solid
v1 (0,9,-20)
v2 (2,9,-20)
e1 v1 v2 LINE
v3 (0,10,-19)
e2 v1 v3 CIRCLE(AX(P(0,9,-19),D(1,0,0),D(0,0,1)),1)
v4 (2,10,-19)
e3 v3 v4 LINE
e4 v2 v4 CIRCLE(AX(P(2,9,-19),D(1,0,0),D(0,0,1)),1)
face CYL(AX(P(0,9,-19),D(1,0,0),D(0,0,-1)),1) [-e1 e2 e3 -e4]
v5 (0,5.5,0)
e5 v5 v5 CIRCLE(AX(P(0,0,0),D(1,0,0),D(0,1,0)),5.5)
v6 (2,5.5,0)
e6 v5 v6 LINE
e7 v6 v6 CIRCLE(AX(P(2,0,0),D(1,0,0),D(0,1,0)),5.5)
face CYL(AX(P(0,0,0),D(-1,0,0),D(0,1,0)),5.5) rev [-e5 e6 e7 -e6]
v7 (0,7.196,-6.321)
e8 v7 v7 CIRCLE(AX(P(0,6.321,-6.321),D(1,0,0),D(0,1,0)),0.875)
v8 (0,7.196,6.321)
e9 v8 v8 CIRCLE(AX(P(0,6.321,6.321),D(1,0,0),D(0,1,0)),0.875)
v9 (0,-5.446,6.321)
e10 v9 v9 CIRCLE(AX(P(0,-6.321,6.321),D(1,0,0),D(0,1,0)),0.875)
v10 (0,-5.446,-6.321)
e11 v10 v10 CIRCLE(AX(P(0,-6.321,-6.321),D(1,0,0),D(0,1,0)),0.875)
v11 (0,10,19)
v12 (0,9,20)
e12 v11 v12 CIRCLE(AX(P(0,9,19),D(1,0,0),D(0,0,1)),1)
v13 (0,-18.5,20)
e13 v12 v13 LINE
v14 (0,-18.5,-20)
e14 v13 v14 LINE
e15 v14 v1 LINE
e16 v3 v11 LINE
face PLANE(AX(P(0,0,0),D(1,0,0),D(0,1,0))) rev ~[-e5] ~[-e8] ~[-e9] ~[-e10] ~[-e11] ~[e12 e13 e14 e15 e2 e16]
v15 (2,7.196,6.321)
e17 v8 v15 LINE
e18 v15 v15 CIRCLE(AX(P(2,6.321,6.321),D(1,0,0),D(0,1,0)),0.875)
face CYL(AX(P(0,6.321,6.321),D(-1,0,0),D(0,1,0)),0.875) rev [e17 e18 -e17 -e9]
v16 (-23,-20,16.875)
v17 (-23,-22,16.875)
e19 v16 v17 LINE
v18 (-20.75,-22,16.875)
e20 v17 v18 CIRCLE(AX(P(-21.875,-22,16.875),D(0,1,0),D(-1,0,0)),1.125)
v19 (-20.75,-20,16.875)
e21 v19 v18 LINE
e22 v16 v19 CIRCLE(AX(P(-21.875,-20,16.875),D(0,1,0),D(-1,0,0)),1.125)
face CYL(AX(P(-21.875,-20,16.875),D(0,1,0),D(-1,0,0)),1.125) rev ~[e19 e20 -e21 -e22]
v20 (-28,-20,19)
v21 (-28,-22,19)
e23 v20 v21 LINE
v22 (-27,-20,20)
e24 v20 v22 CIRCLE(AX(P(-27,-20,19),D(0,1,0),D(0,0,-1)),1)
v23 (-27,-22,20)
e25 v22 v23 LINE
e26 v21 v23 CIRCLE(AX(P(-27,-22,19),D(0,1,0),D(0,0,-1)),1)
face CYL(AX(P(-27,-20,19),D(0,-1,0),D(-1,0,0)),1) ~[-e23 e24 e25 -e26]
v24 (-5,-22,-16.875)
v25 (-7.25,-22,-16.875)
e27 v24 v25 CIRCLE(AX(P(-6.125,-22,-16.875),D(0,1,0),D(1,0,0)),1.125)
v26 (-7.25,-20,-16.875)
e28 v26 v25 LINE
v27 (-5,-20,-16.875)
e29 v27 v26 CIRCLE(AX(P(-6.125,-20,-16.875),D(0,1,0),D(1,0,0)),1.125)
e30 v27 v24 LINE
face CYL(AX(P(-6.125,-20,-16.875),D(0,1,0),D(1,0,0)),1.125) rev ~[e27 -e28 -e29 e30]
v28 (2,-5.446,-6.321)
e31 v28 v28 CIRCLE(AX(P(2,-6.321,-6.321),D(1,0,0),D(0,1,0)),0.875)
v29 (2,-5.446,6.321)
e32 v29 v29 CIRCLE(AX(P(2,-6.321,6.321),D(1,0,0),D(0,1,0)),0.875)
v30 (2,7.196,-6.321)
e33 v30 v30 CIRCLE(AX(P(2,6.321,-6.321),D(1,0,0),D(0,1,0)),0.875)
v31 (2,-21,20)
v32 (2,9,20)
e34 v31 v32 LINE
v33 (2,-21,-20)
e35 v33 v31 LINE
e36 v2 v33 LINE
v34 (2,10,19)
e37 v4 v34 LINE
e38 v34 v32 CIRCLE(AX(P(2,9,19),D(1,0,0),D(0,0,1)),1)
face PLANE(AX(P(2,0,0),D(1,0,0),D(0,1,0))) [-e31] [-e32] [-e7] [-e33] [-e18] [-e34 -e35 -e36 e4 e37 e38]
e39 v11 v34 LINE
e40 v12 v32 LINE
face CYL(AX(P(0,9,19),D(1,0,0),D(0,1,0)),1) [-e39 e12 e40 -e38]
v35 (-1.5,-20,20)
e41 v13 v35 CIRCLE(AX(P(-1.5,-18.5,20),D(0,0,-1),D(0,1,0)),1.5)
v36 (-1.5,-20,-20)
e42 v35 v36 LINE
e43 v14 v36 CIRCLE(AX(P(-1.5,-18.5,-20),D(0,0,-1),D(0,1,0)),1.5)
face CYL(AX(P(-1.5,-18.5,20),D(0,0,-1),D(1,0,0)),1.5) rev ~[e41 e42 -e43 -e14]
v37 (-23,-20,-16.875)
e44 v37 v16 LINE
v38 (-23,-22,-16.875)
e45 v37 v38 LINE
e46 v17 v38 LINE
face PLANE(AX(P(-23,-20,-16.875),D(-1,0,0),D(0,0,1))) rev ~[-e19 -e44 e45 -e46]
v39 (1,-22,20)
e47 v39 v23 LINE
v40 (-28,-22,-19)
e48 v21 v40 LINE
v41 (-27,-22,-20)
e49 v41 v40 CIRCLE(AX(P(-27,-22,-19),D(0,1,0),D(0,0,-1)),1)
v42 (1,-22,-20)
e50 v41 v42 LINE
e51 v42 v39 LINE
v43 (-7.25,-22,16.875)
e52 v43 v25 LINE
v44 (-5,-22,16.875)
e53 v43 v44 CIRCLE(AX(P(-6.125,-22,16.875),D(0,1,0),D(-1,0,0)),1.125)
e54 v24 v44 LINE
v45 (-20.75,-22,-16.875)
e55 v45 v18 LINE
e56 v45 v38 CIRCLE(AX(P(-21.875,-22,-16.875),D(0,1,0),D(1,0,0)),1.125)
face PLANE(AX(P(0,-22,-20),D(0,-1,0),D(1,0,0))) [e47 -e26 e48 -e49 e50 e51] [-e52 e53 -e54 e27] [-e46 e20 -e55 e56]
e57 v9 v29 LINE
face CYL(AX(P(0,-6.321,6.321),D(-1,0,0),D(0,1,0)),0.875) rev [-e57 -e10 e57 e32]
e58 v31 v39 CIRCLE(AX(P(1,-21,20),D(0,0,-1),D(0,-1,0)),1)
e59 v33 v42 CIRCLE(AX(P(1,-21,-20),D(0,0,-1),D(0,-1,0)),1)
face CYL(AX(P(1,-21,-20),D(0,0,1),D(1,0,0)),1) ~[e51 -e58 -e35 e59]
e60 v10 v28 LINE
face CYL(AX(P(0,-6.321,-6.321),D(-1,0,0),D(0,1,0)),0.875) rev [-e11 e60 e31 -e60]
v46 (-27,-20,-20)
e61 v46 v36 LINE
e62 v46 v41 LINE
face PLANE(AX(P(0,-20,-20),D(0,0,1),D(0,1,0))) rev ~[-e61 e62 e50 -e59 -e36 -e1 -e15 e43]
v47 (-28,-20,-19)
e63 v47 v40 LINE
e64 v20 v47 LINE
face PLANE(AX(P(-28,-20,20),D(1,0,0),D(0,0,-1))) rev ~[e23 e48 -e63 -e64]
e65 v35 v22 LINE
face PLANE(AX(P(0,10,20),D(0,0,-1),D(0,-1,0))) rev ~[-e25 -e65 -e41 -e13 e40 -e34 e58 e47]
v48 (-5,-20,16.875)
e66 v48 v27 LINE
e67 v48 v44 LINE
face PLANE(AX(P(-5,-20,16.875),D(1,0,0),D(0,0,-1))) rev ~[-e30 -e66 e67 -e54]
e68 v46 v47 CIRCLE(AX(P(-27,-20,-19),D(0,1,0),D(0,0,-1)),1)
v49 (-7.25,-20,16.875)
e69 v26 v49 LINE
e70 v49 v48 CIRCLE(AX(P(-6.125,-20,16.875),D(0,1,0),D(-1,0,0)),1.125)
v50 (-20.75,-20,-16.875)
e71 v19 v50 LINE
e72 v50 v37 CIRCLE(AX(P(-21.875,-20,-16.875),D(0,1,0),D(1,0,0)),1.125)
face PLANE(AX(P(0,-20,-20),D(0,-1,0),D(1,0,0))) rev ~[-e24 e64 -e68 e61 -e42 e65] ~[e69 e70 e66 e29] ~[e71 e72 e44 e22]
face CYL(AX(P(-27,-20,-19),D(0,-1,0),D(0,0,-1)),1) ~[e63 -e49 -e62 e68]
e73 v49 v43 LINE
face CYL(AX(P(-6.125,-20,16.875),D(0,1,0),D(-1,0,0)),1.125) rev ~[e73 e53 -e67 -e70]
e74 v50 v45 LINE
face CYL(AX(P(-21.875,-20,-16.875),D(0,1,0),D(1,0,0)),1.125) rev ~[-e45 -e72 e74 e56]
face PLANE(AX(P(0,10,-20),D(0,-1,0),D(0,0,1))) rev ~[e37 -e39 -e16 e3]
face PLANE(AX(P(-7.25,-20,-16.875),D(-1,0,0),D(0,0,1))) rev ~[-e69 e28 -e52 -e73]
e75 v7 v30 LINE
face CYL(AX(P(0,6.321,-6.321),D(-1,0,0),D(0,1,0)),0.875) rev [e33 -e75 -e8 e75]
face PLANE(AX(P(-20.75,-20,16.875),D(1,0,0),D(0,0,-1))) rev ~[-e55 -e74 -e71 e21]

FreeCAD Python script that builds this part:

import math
import FreeCAD as App
import Part
import Sketcher


def edges_at(feature, points):
    """Names of the edges that pass closest to the given points."""
    edges = feature.Shape.Edges
    near = lambda p: min(range(len(edges)), key=lambda i: edges[i].distToShape(Part.Vertex(*p))[0])
    return sorted({f"Edge{near(p) + 1}" for p in points})


def add_polygon(sketch, points):
    """Adds a closed chain of lines whose ends are joined by coincident constraints."""
    first, n = sketch.GeometryCount, len(points)
    for a, b in zip(points, points[1:] + points[:1]):
        sketch.addGeometry(Part.LineSegment(App.Vector(*a, 0), App.Vector(*b, 0)), False)
    for i in range(n):
        sketch.addConstraint(Sketcher.Constraint("Coincident", first + i, 2, first + (i + 1) % n, 1))

doc = App.newDocument("Part")
body = doc.addObject("PartDesign::Body", "Body")

# Sketch on YZ plane
sketch1 = body.newObject("Sketcher::SketchObject", "Sketch")
sketch1.AttachmentSupport = (doc.getObject("YZ_Plane"), [""])
sketch1.MapMode = "FlatFace"
add_polygon(sketch1, [(10, -20), (10, 20), (-20, 20), (-20, -20)])  # lines 0-3
sketch1.addGeometry(Part.Circle(App.Vector(-6.321, -6.321, 0), App.Vector(0, 0, 1), 0.875), False)  # 4
sketch1.addGeometry(Part.Circle(App.Vector(6.321, -6.321, 0), App.Vector(0, 0, 1), 0.875), False)  # 5
sketch1.addGeometry(Part.Circle(App.Vector(-6.321, 6.321, 0), App.Vector(0, 0, 1), 0.875), False)  # 6
sketch1.addGeometry(Part.Circle(App.Vector(0, 0, 0), App.Vector(0, 0, 1), 5.5), False)  # 7
sketch1.addGeometry(Part.Circle(App.Vector(6.321, 6.321, 0), App.Vector(0, 0, 1), 0.875), False)  # 8
sketch1.addConstraint(Sketcher.Constraint("Vertical", 0))
sketch1.addConstraint(Sketcher.Constraint("Horizontal", 1))
sketch1.addConstraint(Sketcher.Constraint("Vertical", 2))
sketch1.addConstraint(Sketcher.Constraint("Horizontal", 3))
sketch1.addConstraint(Sketcher.Constraint("Coincident", 7, 3, -1, 1))
sketch1.addConstraint(Sketcher.Constraint("Equal", 4, 5))
sketch1.addConstraint(Sketcher.Constraint("Equal", 5, 6))
sketch1.addConstraint(Sketcher.Constraint("Equal", 6, 8))
sketch1.addConstraint(Sketcher.Constraint("Symmetric", 5, 3, 6, 3, -1, 1))
sketch1.addConstraint(Sketcher.Constraint("Symmetric", 4, 3, 8, 3, -1, 1))
sketch1.addConstraint(Sketcher.Constraint("Symmetric", 4, 3, 5, 3, -2))
sketch1.addConstraint(Sketcher.Constraint("Diameter", 7, 11.0))
sketch1.addConstraint(Sketcher.Constraint("Diameter", 4, 1.75))
sketch1.addConstraint(Sketcher.Constraint("DistanceX", 1, 2, 1, 1, 30.0))
sketch1.addConstraint(Sketcher.Constraint("DistanceX", -1, 1, 0, 2, 10.0))
sketch1.addConstraint(Sketcher.Constraint("DistanceY", -1, 1, 0, 2, 20.0))
sketch1.addConstraint(Sketcher.Constraint("DistanceY", 2, 2, -1, 1, 20.0))
sketch1.addConstraint(Sketcher.Constraint("DistanceX", 4, 3, 5, 3, 12.642))
sketch1.addConstraint(Sketcher.Constraint("DistanceY", 4, 3, 6, 3, 12.642))
pad1 = body.newObject("PartDesign::Pad", "Pad")
pad1.Profile = sketch1
pad1.Length = 2

# Sketch on XZ plane
sketch2 = body.newObject("Sketcher::SketchObject", "Sketch001")
sketch2.AttachmentSupport = (doc.getObject("XZ_Plane"), [""])
sketch2.MapMode = "FlatFace"
sketch2.AttachmentOffset = App.Placement(App.Vector(0, 0, 20), App.Rotation())
add_polygon(sketch2, [(-28, -20), (2, -20), (2, 20), (-28, 20)])  # lines 0-3
sketch2.addConstraint(Sketcher.Constraint("Horizontal", 0))
sketch2.addConstraint(Sketcher.Constraint("Vertical", 1))
sketch2.addConstraint(Sketcher.Constraint("Horizontal", 2))
sketch2.addConstraint(Sketcher.Constraint("Vertical", 3))
sketch2.addConstraint(Sketcher.Constraint("DistanceX", 0, 1, 0, 2, 30.0))
sketch2.addConstraint(Sketcher.Constraint("DistanceY", 1, 1, 1, 2, 40.0))
sketch2.addConstraint(Sketcher.Constraint("DistanceX", -1, 1, 0, 2, 2.0))
sketch2.addConstraint(Sketcher.Constraint("DistanceY", 0, 2, -1, 1, 20.0))
pad2 = body.newObject("PartDesign::Pad", "Pad001")
pad2.Profile = sketch2
pad2.Length = 2

# Sketch on XZ plane
sketch3 = body.newObject("Sketcher::SketchObject", "Sketch002")
sketch3.AttachmentSupport = (doc.getObject("XZ_Plane"), [""])
sketch3.MapMode = "FlatFace"
sketch3.AttachmentOffset = App.Placement(App.Vector(0, 0, 20), App.Rotation())
sketch3.addGeometry(Part.ArcOfCircle(Part.Circle(App.Vector(-6.125, -16.875, 0), App.Vector(0, 0, 1), 1.125), math.radians(180), math.radians(360)), False)
sketch3.addGeometry(Part.LineSegment(App.Vector(-7.25, -16.875, 0), App.Vector(-7.25, 16.875, 0)), False)
sketch3.addGeometry(Part.ArcOfCircle(Part.Circle(App.Vector(-6.125, 16.875, 0), App.Vector(0, 0, 1), 1.125), math.radians(0), math.radians(180)), False)
sketch3.addGeometry(Part.LineSegment(App.Vector(-5, 16.875, 0), App.Vector(-5, -16.875, 0)), False)
sketch3.addGeometry(Part.ArcOfCircle(Part.Circle(App.Vector(-21.875, -16.875, 0), App.Vector(0, 0, 1), 1.125), math.radians(180), math.radians(360)), False)
sketch3.addGeometry(Part.LineSegment(App.Vector(-23, -16.875, 0), App.Vector(-23, 16.875, 0)), False)
sketch3.addGeometry(Part.ArcOfCircle(Part.Circle(App.Vector(-21.875, 16.875, 0), App.Vector(0, 0, 1), 1.125), math.radians(0), math.radians(180)), False)
sketch3.addGeometry(Part.LineSegment(App.Vector(-20.75, 16.875, 0), App.Vector(-20.75, -16.875, 0)), False)
sketch3.addConstraint(Sketcher.Constraint("Tangent", 0, 1, 1, 1))
sketch3.addConstraint(Sketcher.Constraint("Tangent", 1, 2, 2, 2))
sketch3.addConstraint(Sketcher.Constraint("Tangent", 2, 1, 3, 1))
sketch3.addConstraint(Sketcher.Constraint("Tangent", 3, 2, 0, 2))
sketch3.addConstraint(Sketcher.Constraint("Tangent", 4, 1, 5, 1))
sketch3.addConstraint(Sketcher.Constraint("Tangent", 5, 2, 6, 2))
sketch3.addConstraint(Sketcher.Constraint("Tangent", 6, 1, 7, 1))
sketch3.addConstraint(Sketcher.Constraint("Tangent", 7, 2, 4, 2))
sketch3.addConstraint(Sketcher.Constraint("Vertical", 1))
sketch3.addConstraint(Sketcher.Constraint("Vertical", 3))
sketch3.addConstraint(Sketcher.Constraint("Vertical", 5))
sketch3.addConstraint(Sketcher.Constraint("Vertical", 7))
sketch3.addConstraint(Sketcher.Constraint("Equal", 2, 4))
sketch3.addConstraint(Sketcher.Constraint("Horizontal", 0, 3, 4, 3))
sketch3.addConstraint(Sketcher.Constraint("Horizontal", 2, 3, 6, 3))
sketch3.addConstraint(Sketcher.Constraint("DistanceX", 2, 1, -1, 1, 5.0))
sketch3.addConstraint(Sketcher.Constraint("Radius", 0, 1.125))
sketch3.addConstraint(Sketcher.Constraint("DistanceX", 4, 1, -1, 1, 23.0))
sketch3.addConstraint(Sketcher.Constraint("DistanceY", 1, 1, 1, 2, 33.75))
sketch3.addConstraint(Sketcher.Constraint("DistanceY", 0, 3, -1, 1, 16.875))
pocket1 = body.newObject("PartDesign::Pocket", "Pocket")
pocket1.Profile = sketch3
pocket1.Type = "ThroughAll"
pocket1.Reversed = True
doc.recompute()

fillet = body.newObject("PartDesign::Fillet", "Fillet")
fillet.Base = (pocket1, edges_at(pocket1, [(0, -20, 0)]))
fillet.Radius = 1.5
doc.recompute()

fillet2 = body.newObject("PartDesign::Fillet", "Fillet001")
fillet2.Base = (fillet, edges_at(fillet, [
    (1, 10, 20),
    (1, 10, -20),
    (-28, -21, 20),
    (-28, -21, -20),
    (2, -22, 0),
]))
fillet2.Radius = 1

doc.recompute()
